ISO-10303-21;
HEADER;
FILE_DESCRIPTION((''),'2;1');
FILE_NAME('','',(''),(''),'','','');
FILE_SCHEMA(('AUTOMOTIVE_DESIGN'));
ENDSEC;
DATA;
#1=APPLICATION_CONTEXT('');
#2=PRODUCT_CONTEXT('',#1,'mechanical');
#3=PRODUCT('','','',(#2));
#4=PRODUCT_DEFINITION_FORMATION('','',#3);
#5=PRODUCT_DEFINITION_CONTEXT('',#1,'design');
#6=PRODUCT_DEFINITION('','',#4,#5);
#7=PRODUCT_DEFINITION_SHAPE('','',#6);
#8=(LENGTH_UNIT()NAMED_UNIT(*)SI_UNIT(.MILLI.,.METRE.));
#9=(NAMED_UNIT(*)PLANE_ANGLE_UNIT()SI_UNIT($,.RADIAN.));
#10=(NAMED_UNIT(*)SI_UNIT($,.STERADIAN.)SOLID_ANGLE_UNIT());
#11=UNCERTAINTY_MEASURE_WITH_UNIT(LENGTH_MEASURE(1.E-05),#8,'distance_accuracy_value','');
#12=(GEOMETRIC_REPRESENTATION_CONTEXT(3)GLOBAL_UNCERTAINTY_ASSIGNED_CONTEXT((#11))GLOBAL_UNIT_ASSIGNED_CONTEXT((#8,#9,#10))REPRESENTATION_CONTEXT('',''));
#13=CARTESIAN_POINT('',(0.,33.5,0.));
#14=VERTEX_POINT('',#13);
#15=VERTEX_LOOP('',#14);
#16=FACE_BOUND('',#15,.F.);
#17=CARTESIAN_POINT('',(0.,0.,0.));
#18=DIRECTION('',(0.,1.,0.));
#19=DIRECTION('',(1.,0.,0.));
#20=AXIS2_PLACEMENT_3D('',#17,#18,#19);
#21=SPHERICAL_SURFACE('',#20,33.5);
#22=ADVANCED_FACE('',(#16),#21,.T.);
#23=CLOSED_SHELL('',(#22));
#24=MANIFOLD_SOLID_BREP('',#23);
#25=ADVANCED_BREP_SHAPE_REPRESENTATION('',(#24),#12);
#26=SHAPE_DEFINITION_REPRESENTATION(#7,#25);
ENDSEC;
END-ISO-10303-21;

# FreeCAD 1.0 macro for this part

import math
import FreeCAD as App
import Part
import Sketcher

V = App.Vector

doc = App.newDocument("Part")
params = doc.addObject("Spreadsheet::Sheet", "Params")
for row, (alias, value) in enumerate([
    ("sketch1_radius", "33.5 mm"),
    ("revolution_angle", "360 deg"),
], start=1):
    params.set(f"A{row}", alias)
    params.set(f"B{row}", "=" + value)
    params.setAlias(f"B{row}", alias)

body = doc.addObject("PartDesign::Body", "Body")

sketch1 = body.newObject("Sketcher::SketchObject", "Sketch")
sketch1.AttachmentSupport = (doc.getObject("XY_Plane"), [""])
sketch1.MapMode = "FlatFace"
sketch1.addGeometry([
    Part.LineSegment(V(0, 34, 0), V(0, -34, 0)),
    Part.ArcOfCircle(Part.Circle(V(0, 0, 0), V(0, 0, 1), 34), math.radians(-90), math.radians(90)),
], False)
sketch1.addConstraint([
    Sketcher.Constraint("Coincident", 0, 1, 1, 2),
    Sketcher.Constraint("Coincident", 1, 1, 0, 2),
    Sketcher.Constraint("Vertical", 0),
    Sketcher.Constraint("Coincident", 1, 3, -1, 1),
    Sketcher.Constraint("PointOnObject", 0, 1, -2),
    Sketcher.Constraint("Radius", 1, 33.5),
])
sketch1.setExpression("Constraints[5]", "Params.sketch1_radius")
revolution = body.newObject("PartDesign::Revolution", "Revolution")
revolution.Profile = sketch1
revolution.ReferenceAxis = (sketch1, ["V_Axis"])
revolution.setExpression("Angle", "Params.revolution_angle")

doc.recompute()
